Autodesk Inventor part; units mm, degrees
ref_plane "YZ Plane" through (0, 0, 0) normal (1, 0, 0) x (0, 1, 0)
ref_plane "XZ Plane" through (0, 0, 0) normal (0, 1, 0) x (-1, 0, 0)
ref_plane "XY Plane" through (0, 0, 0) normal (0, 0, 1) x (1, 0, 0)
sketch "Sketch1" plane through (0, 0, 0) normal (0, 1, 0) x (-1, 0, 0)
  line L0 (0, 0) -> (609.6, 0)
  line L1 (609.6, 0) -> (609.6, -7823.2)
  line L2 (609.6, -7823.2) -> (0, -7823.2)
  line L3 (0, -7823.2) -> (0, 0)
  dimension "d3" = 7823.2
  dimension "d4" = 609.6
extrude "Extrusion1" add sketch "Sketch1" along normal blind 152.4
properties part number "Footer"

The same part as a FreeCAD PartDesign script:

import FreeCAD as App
import Part
import Sketcher
Q = App.Units.Quantity


def add_polygon(sketch, points):
    """Adds a closed chain of lines whose ends are joined by coincident constraints."""
    first, n = sketch.GeometryCount, len(points)
    for a, b in zip(points, points[1:] + points[:1]):
        sketch.addGeometry(Part.LineSegment(App.Vector(*a, 0), App.Vector(*b, 0)), False)
    for i in range(n):
        sketch.addConstraint(Sketcher.Constraint("Coincident", first + i, 2, first + (i + 1) % n, 1))

doc = App.newDocument("Part")
body = doc.addObject("PartDesign::Body", "Body")

# Sketch on XZ plane
sketch1 = body.newObject("Sketcher::SketchObject", "Sketch")
sketch1.AttachmentSupport = (doc.getObject("XZ_Plane"), [""])
sketch1.MapMode = "FlatFace"
add_polygon(sketch1, [(-610, 0), (0, 0), (0, -7823), (-610, -7823)])  # lines 0-3
sketch1.addConstraint(Sketcher.Constraint("Horizontal", 0))
sketch1.addConstraint(Sketcher.Constraint("Vertical", 1))
sketch1.addConstraint(Sketcher.Constraint("Horizontal", 2))
sketch1.addConstraint(Sketcher.Constraint("Vertical", 3))
sketch1.addConstraint(Sketcher.Constraint("Coincident", 0, 2, -1, 1))
sketch1.addConstraint(Sketcher.Constraint("DistanceX", 0, 1, 0, 2, Q("24 in")))
sketch1.addConstraint(Sketcher.Constraint("DistanceY", 1, 2, 1, 1, Q("308 in")))
pad1 = body.newObject("PartDesign::Pad", "Pad")
pad1.Profile = sketch1
pad1.Length = Q("6 in")
pad1.Reversed = True

doc.recompute()
